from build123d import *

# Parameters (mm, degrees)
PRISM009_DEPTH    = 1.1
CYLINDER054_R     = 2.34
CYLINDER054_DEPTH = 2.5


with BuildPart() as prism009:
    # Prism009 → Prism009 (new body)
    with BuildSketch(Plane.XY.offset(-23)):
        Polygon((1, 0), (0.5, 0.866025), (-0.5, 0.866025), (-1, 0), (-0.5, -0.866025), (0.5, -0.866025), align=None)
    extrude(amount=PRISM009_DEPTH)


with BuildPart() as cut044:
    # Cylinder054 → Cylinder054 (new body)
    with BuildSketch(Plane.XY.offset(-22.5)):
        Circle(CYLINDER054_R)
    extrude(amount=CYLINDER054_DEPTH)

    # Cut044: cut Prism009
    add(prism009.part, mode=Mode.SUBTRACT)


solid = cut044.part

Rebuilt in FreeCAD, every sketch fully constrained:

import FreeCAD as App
import Part
import Sketcher
from FreeCAD import Vector
Q = App.Units.Quantity

doc = App.newDocument("Part")
body = doc.addObject("PartDesign::Body", "Body")

# Sketch on XY plane
sketch1 = body.newObject("Sketcher::SketchObject", "Sketch")
sketch1.AttachmentSupport = (doc.getObject("XY_Plane"), [""])
sketch1.MapMode = "FlatFace"
sketch1.AttachmentOffset = App.Placement(Vector(0, 0, -23), App.Rotation())
sketch1.addGeometry(Part.LineSegment(Vector(1, 0, 0), Vector(0.5, 0.866025, 0)), False)
sketch1.addGeometry(Part.LineSegment(Vector(0.5, 0.866025, 0), Vector(-0.5, 0.866025, 0)), False)
sketch1.addGeometry(Part.LineSegment(Vector(-0.5, 0.866025, 0), Vector(-1, 0, 0)), False)
sketch1.addGeometry(Part.LineSegment(Vector(-1, 0, 0), Vector(-0.5, -0.866025, 0)), False)
sketch1.addGeometry(Part.LineSegment(Vector(-0.5, -0.866025, 0), Vector(0.5, -0.866025, 0)), False)
sketch1.addGeometry(Part.LineSegment(Vector(0.5, -0.866025, 0), Vector(1, 0, 0)), False)
sketch1.addConstraint(Sketcher.Constraint("Coincident", 0, 2, 1, 1))
sketch1.addConstraint(Sketcher.Constraint("Coincident", 1, 2, 2, 1))
sketch1.addConstraint(Sketcher.Constraint("Coincident", 2, 2, 3, 1))
sketch1.addConstraint(Sketcher.Constraint("Coincident", 3, 2, 4, 1))
sketch1.addConstraint(Sketcher.Constraint("Coincident", 4, 2, 5, 1))
sketch1.addConstraint(Sketcher.Constraint("Coincident", 5, 2, 0, 1))
sketch1.addConstraint(Sketcher.Constraint("Horizontal", 1))
sketch1.addConstraint(Sketcher.Constraint("Horizontal", 4))
sketch1.addConstraint(Sketcher.Constraint("Symmetric", 0, 2, 3, 2, -1, 1))
sketch1.addConstraint(Sketcher.Constraint("Symmetric", 2, 2, 5, 2, -1, 1))
sketch1.addConstraint(Sketcher.Constraint("PointOnObject", 2, 2, -1))
sketch1.addConstraint(Sketcher.Constraint("Parallel", 2, 5))
sketch1.addConstraint(Sketcher.Constraint("Vertical", 1, 2, 3, 2))
sketch1.addConstraint(Sketcher.Constraint("DistanceX", 1, 2, 1, 1, Q("1 mm")))
sketch1.addConstraint(Sketcher.Constraint("Angle", 0, Q("120.000012 deg")))
sketch1.addConstraint(Sketcher.Constraint("Distance", 0, Q("1 mm")))
pad1 = body.newObject("PartDesign::Pad", "Pad")
pad1.Profile = sketch1
pad1.Length = 1.1
body2 = doc.addObject("PartDesign::Body", "Body001")

# Sketch on XY plane
sketch2 = body2.newObject("Sketcher::SketchObject", "Sketch001")
sketch2.AttachmentSupport = (doc.getObject("XY_Plane001"), [""])
sketch2.MapMode = "FlatFace"
sketch2.AttachmentOffset = App.Placement(Vector(0, 0, -22.5), App.Rotation())
sketch2.addGeometry(Part.Circle(Vector(0, 0, 0), Vector(0, 0, 1), 2.34), False)
sketch2.addConstraint(Sketcher.Constraint("Coincident", 0, 3, -1, 1))
sketch2.addConstraint(Sketcher.Constraint("Diameter", 0, Q("4.68 mm")))
pad2 = body2.newObject("PartDesign::Pad", "Pad001")
pad2.Profile = sketch2
pad2.Length = 2.5
doc.recompute()

boolean = body2.newObject("PartDesign::Boolean", "Boolean")
boolean.Type = "Cut"
boolean.addObjects([body])

doc.recompute()
